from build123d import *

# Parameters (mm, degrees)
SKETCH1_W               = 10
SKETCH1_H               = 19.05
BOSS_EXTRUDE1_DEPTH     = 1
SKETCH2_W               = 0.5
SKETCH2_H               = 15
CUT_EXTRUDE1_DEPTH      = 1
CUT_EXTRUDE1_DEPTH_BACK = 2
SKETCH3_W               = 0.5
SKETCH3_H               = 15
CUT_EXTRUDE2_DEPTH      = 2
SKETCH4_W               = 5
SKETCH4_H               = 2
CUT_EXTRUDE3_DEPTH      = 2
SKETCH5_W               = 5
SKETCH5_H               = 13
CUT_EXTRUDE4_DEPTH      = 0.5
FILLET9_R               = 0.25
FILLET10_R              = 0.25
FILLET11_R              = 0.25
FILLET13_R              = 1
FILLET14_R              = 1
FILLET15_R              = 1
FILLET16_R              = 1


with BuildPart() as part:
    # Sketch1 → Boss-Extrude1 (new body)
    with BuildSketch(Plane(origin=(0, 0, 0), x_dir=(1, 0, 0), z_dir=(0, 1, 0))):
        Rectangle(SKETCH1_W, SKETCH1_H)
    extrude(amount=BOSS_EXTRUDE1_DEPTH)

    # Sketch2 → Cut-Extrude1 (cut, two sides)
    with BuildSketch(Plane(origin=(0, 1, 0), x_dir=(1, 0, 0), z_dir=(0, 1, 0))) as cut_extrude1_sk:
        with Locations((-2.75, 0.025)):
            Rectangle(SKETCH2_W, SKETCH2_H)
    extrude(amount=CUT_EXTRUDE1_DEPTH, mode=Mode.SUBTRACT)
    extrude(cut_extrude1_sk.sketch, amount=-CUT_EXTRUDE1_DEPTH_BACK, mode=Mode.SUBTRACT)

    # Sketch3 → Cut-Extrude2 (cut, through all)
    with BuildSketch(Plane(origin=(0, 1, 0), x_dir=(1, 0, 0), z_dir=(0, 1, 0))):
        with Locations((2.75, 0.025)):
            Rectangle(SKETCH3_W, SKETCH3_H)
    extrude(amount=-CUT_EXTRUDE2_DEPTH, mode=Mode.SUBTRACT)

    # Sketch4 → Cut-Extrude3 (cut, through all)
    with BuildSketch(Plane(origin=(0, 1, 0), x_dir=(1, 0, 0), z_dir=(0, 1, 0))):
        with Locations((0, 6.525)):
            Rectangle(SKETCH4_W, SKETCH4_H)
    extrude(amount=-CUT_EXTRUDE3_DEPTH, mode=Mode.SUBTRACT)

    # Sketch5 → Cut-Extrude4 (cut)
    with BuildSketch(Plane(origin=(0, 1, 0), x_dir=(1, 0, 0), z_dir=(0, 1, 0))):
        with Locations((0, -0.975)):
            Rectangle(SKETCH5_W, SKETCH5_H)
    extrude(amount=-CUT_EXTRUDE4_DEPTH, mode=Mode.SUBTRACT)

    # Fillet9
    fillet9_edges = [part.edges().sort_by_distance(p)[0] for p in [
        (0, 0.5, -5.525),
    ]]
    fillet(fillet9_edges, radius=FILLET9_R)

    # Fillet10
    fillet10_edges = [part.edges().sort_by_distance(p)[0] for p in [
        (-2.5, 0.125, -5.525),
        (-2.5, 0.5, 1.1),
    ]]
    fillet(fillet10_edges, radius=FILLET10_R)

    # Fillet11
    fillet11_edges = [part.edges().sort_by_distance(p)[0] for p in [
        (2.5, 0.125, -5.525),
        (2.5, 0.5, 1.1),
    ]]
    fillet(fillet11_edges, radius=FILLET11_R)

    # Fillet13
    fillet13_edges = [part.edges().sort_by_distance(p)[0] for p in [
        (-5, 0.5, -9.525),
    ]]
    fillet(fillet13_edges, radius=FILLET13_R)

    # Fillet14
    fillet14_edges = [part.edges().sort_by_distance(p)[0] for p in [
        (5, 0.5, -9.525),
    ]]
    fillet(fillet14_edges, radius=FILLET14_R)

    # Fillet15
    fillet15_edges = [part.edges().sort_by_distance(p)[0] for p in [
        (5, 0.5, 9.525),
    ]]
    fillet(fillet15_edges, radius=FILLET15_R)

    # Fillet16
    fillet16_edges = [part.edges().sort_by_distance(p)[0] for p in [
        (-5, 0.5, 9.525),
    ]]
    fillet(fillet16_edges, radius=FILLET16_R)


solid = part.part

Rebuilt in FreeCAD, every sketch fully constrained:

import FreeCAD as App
import Part
import Sketcher

V = App.Vector
Q = App.Units.Quantity


def edges_at(feature, points):
    """Names of the edges that pass closest to the given points."""
    edges = feature.Shape.Edges
    near = lambda p: min(range(len(edges)), key=lambda i: edges[i].distToShape(Part.Vertex(*p))[0])
    return sorted({f"Edge{near(p) + 1}" for p in points})


def add_polygon(sketch, points):
    """Adds a closed chain of lines whose ends are joined by coincident constraints."""
    first, n = sketch.GeometryCount, len(points)
    for a, b in zip(points, points[1:] + points[:1]):
        sketch.addGeometry(Part.LineSegment(App.Vector(*a, 0), App.Vector(*b, 0)), False)
    for i in range(n):
        sketch.addConstraint(Sketcher.Constraint("Coincident", first + i, 2, first + (i + 1) % n, 1))

doc = App.newDocument("Part")
body = doc.addObject("PartDesign::Body", "Body")

# Sketch on XZ plane
sketch1 = body.newObject("Sketcher::SketchObject", "Sketch")
sketch1.AttachmentSupport = (doc.getObject("XZ_Plane"), [""])
sketch1.MapMode = "FlatFace"
add_polygon(sketch1, [(-5, -10), (-5, 10), (5, 10), (5, -10)])  # lines 0-3
sketch1.addConstraint(Sketcher.Constraint("Vertical", 0))
sketch1.addConstraint(Sketcher.Constraint("Horizontal", 1))
sketch1.addConstraint(Sketcher.Constraint("Vertical", 2))
sketch1.addConstraint(Sketcher.Constraint("Horizontal", 3))
sketch1.addConstraint(Sketcher.Constraint("Symmetric", 0, 2, 2, 2, -1, 1))
sketch1.addConstraint(Sketcher.Constraint("DistanceX", 1, 1, 1, 2, Q("10 mm")))
sketch1.addConstraint(Sketcher.Constraint("DistanceY", 0, 1, 0, 2, Q("19.05 mm")))
pad1 = body.newObject("PartDesign::Pad", "Pad")
pad1.Profile = sketch1
pad1.Length = 1
pad1.Reversed = True

# Sketch on XZ plane
sketch2 = body.newObject("Sketcher::SketchObject", "Sketch001")
sketch2.AttachmentSupport = (doc.getObject("XZ_Plane"), [""])
sketch2.MapMode = "FlatFace"
sketch2.AttachmentOffset = App.Placement(V(0, 0, -1), App.Rotation())
add_polygon(sketch2, [(-3, -7.5), (-3, 7.5), (-2.5, 7.5), (-2.5, -7.5)])  # lines 0-3
sketch2.addConstraint(Sketcher.Constraint("Vertical", 0))
sketch2.addConstraint(Sketcher.Constraint("Horizontal", 1))
sketch2.addConstraint(Sketcher.Constraint("Vertical", 2))
sketch2.addConstraint(Sketcher.Constraint("Horizontal", 3))
sketch2.addConstraint(Sketcher.Constraint("DistanceY", 0, 1, 0, 2, Q("15 mm")))
sketch2.addConstraint(Sketcher.Constraint("DistanceX", 1, 1, 1, 2, Q("0.5 mm")))
sketch2.addConstraint(Sketcher.Constraint("DistanceX", 0, 2, -1, 1, Q("3 mm")))
sketch2.addConstraint(Sketcher.Constraint("DistanceY", -1, 1, 0, 2, Q("7.475 mm")))
pocket1 = body.newObject("PartDesign::Pocket", "Pocket")
pocket1.Profile = sketch2
pocket1.Type = "ThroughAll"
pocket1.Midplane = True

# Sketch on XZ plane
sketch3 = body.newObject("Sketcher::SketchObject", "Sketch002")
sketch3.AttachmentSupport = (doc.getObject("XZ_Plane"), [""])
sketch3.MapMode = "FlatFace"
sketch3.AttachmentOffset = App.Placement(V(0, 0, -1), App.Rotation())
add_polygon(sketch3, [(2.5, -7.5), (2.5, 7.5), (3, 7.5), (3, -7.5)])  # lines 0-3
sketch3.addConstraint(Sketcher.Constraint("Vertical", 0))
sketch3.addConstraint(Sketcher.Constraint("Horizontal", 1))
sketch3.addConstraint(Sketcher.Constraint("Vertical", 2))
sketch3.addConstraint(Sketcher.Constraint("Horizontal", 3))
sketch3.addConstraint(Sketcher.Constraint("DistanceY", 0, 1, 0, 2, Q("15 mm")))
sketch3.addConstraint(Sketcher.Constraint("DistanceX", 1, 1, 1, 2, Q("0.5 mm")))
sketch3.addConstraint(Sketcher.Constraint("DistanceX", -1, 1, 1, 2, Q("3 mm")))
sketch3.addConstraint(Sketcher.Constraint("DistanceY", -1, 1, 0, 2, Q("7.475 mm")))
pocket2 = body.newObject("PartDesign::Pocket", "Pocket001")
pocket2.Profile = sketch3
pocket2.Type = "ThroughAll"
pocket2.Reversed = True

# Sketch on XZ plane
sketch4 = body.newObject("Sketcher::SketchObject", "Sketch003")
sketch4.AttachmentSupport = (doc.getObject("XZ_Plane"), [""])
sketch4.MapMode = "FlatFace"
sketch4.AttachmentOffset = App.Placement(V(0, 0, -1), App.Rotation())
add_polygon(sketch4, [(-2.5, -7.5), (-2.5, -5.5), (2.5, -5.5), (2.5, -7.5)])  # lines 0-3
sketch4.addConstraint(Sketcher.Constraint("Vertical", 0))
sketch4.addConstraint(Sketcher.Constraint("Horizontal", 1))
sketch4.addConstraint(Sketcher.Constraint("Vertical", 2))
sketch4.addConstraint(Sketcher.Constraint("Horizontal", 3))
sketch4.addConstraint(Sketcher.Constraint("DistanceX", 1, 1, 1, 2, Q("5 mm")))
sketch4.addConstraint(Sketcher.Constraint("DistanceY", 0, 1, 0, 2, Q("2 mm")))
sketch4.addConstraint(Sketcher.Constraint("DistanceX", 0, 2, -1, 1, Q("2.5 mm")))
sketch4.addConstraint(Sketcher.Constraint("DistanceY", 0, 2, -1, 1, Q("5.525 mm")))
pocket3 = body.newObject("PartDesign::Pocket", "Pocket002")
pocket3.Profile = sketch4
pocket3.Type = "ThroughAll"
pocket3.Reversed = True

# Sketch on XZ plane
sketch5 = body.newObject("Sketcher::SketchObject", "Sketch004")
sketch5.AttachmentSupport = (doc.getObject("XZ_Plane"), [""])
sketch5.MapMode = "FlatFace"
sketch5.AttachmentOffset = App.Placement(V(0, 0, -1), App.Rotation())
add_polygon(sketch5, [(-2, -6), (-2, 7), (2, 7), (2, -6)])  # lines 0-3
sketch5.addConstraint(Sketcher.Constraint("Vertical", 0))
sketch5.addConstraint(Sketcher.Constraint("Horizontal", 1))
sketch5.addConstraint(Sketcher.Constraint("Vertical", 2))
sketch5.addConstraint(Sketcher.Constraint("Horizontal", 3))
sketch5.addConstraint(Sketcher.Constraint("DistanceX", 1, 1, 1, 2, Q("5 mm")))
sketch5.addConstraint(Sketcher.Constraint("DistanceY", 0, 1, 0, 2, Q("13 mm")))
sketch5.addConstraint(Sketcher.Constraint("DistanceX", 0, 2, -1, 1, Q("2.5 mm")))
sketch5.addConstraint(Sketcher.Constraint("DistanceY", -1, 1, 0, 2, Q("7.475 mm")))
pocket4 = body.newObject("PartDesign::Pocket", "Pocket003")
pocket4.Profile = sketch5
pocket4.Length = 0.5
pocket4.Reversed = True
doc.recompute()

fillet = body.newObject("PartDesign::Fillet", "Fillet")
fillet.Base = (pocket4, edges_at(pocket4, [(0, 0.5, -5.525)]))
fillet.Radius = 0.25
doc.recompute()

fillet2 = body.newObject("PartDesign::Fillet", "Fillet001")
fillet2.Base = (fillet, edges_at(fillet, [(-2.5, 0.125, -5.525), (-2.5, 0.5, 1.1)]))
fillet2.Radius = 0.25
doc.recompute()

fillet3 = body.newObject("PartDesign::Fillet", "Fillet002")
fillet3.Base = (fillet2, edges_at(fillet2, [(2.5, 0.125, -5.525), (2.5, 0.5, 1.1)]))
fillet3.Radius = 0.25
doc.recompute()

fillet4 = body.newObject("PartDesign::Fillet", "Fillet003")
fillet4.Base = (fillet3, edges_at(fillet3, [(-5, 0.5, -9.525)]))
fillet4.Radius = 1
doc.recompute()

fillet5 = body.newObject("PartDesign::Fillet", "Fillet004")
fillet5.Base = (fillet4, edges_at(fillet4, [(5, 0.5, -9.525)]))
fillet5.Radius = 1
doc.recompute()

fillet6 = body.newObject("PartDesign::Fillet", "Fillet005")
fillet6.Base = (fillet5, edges_at(fillet5, [(5, 0.5, 9.525)]))
fillet6.Radius = 1
doc.recompute()

fillet7 = body.newObject("PartDesign::Fillet", "Fillet006")
fillet7.Base = (fillet6, edges_at(fillet6, [(-5, 0.5, 9.525)]))
fillet7.Radius = 1

doc.recompute()
